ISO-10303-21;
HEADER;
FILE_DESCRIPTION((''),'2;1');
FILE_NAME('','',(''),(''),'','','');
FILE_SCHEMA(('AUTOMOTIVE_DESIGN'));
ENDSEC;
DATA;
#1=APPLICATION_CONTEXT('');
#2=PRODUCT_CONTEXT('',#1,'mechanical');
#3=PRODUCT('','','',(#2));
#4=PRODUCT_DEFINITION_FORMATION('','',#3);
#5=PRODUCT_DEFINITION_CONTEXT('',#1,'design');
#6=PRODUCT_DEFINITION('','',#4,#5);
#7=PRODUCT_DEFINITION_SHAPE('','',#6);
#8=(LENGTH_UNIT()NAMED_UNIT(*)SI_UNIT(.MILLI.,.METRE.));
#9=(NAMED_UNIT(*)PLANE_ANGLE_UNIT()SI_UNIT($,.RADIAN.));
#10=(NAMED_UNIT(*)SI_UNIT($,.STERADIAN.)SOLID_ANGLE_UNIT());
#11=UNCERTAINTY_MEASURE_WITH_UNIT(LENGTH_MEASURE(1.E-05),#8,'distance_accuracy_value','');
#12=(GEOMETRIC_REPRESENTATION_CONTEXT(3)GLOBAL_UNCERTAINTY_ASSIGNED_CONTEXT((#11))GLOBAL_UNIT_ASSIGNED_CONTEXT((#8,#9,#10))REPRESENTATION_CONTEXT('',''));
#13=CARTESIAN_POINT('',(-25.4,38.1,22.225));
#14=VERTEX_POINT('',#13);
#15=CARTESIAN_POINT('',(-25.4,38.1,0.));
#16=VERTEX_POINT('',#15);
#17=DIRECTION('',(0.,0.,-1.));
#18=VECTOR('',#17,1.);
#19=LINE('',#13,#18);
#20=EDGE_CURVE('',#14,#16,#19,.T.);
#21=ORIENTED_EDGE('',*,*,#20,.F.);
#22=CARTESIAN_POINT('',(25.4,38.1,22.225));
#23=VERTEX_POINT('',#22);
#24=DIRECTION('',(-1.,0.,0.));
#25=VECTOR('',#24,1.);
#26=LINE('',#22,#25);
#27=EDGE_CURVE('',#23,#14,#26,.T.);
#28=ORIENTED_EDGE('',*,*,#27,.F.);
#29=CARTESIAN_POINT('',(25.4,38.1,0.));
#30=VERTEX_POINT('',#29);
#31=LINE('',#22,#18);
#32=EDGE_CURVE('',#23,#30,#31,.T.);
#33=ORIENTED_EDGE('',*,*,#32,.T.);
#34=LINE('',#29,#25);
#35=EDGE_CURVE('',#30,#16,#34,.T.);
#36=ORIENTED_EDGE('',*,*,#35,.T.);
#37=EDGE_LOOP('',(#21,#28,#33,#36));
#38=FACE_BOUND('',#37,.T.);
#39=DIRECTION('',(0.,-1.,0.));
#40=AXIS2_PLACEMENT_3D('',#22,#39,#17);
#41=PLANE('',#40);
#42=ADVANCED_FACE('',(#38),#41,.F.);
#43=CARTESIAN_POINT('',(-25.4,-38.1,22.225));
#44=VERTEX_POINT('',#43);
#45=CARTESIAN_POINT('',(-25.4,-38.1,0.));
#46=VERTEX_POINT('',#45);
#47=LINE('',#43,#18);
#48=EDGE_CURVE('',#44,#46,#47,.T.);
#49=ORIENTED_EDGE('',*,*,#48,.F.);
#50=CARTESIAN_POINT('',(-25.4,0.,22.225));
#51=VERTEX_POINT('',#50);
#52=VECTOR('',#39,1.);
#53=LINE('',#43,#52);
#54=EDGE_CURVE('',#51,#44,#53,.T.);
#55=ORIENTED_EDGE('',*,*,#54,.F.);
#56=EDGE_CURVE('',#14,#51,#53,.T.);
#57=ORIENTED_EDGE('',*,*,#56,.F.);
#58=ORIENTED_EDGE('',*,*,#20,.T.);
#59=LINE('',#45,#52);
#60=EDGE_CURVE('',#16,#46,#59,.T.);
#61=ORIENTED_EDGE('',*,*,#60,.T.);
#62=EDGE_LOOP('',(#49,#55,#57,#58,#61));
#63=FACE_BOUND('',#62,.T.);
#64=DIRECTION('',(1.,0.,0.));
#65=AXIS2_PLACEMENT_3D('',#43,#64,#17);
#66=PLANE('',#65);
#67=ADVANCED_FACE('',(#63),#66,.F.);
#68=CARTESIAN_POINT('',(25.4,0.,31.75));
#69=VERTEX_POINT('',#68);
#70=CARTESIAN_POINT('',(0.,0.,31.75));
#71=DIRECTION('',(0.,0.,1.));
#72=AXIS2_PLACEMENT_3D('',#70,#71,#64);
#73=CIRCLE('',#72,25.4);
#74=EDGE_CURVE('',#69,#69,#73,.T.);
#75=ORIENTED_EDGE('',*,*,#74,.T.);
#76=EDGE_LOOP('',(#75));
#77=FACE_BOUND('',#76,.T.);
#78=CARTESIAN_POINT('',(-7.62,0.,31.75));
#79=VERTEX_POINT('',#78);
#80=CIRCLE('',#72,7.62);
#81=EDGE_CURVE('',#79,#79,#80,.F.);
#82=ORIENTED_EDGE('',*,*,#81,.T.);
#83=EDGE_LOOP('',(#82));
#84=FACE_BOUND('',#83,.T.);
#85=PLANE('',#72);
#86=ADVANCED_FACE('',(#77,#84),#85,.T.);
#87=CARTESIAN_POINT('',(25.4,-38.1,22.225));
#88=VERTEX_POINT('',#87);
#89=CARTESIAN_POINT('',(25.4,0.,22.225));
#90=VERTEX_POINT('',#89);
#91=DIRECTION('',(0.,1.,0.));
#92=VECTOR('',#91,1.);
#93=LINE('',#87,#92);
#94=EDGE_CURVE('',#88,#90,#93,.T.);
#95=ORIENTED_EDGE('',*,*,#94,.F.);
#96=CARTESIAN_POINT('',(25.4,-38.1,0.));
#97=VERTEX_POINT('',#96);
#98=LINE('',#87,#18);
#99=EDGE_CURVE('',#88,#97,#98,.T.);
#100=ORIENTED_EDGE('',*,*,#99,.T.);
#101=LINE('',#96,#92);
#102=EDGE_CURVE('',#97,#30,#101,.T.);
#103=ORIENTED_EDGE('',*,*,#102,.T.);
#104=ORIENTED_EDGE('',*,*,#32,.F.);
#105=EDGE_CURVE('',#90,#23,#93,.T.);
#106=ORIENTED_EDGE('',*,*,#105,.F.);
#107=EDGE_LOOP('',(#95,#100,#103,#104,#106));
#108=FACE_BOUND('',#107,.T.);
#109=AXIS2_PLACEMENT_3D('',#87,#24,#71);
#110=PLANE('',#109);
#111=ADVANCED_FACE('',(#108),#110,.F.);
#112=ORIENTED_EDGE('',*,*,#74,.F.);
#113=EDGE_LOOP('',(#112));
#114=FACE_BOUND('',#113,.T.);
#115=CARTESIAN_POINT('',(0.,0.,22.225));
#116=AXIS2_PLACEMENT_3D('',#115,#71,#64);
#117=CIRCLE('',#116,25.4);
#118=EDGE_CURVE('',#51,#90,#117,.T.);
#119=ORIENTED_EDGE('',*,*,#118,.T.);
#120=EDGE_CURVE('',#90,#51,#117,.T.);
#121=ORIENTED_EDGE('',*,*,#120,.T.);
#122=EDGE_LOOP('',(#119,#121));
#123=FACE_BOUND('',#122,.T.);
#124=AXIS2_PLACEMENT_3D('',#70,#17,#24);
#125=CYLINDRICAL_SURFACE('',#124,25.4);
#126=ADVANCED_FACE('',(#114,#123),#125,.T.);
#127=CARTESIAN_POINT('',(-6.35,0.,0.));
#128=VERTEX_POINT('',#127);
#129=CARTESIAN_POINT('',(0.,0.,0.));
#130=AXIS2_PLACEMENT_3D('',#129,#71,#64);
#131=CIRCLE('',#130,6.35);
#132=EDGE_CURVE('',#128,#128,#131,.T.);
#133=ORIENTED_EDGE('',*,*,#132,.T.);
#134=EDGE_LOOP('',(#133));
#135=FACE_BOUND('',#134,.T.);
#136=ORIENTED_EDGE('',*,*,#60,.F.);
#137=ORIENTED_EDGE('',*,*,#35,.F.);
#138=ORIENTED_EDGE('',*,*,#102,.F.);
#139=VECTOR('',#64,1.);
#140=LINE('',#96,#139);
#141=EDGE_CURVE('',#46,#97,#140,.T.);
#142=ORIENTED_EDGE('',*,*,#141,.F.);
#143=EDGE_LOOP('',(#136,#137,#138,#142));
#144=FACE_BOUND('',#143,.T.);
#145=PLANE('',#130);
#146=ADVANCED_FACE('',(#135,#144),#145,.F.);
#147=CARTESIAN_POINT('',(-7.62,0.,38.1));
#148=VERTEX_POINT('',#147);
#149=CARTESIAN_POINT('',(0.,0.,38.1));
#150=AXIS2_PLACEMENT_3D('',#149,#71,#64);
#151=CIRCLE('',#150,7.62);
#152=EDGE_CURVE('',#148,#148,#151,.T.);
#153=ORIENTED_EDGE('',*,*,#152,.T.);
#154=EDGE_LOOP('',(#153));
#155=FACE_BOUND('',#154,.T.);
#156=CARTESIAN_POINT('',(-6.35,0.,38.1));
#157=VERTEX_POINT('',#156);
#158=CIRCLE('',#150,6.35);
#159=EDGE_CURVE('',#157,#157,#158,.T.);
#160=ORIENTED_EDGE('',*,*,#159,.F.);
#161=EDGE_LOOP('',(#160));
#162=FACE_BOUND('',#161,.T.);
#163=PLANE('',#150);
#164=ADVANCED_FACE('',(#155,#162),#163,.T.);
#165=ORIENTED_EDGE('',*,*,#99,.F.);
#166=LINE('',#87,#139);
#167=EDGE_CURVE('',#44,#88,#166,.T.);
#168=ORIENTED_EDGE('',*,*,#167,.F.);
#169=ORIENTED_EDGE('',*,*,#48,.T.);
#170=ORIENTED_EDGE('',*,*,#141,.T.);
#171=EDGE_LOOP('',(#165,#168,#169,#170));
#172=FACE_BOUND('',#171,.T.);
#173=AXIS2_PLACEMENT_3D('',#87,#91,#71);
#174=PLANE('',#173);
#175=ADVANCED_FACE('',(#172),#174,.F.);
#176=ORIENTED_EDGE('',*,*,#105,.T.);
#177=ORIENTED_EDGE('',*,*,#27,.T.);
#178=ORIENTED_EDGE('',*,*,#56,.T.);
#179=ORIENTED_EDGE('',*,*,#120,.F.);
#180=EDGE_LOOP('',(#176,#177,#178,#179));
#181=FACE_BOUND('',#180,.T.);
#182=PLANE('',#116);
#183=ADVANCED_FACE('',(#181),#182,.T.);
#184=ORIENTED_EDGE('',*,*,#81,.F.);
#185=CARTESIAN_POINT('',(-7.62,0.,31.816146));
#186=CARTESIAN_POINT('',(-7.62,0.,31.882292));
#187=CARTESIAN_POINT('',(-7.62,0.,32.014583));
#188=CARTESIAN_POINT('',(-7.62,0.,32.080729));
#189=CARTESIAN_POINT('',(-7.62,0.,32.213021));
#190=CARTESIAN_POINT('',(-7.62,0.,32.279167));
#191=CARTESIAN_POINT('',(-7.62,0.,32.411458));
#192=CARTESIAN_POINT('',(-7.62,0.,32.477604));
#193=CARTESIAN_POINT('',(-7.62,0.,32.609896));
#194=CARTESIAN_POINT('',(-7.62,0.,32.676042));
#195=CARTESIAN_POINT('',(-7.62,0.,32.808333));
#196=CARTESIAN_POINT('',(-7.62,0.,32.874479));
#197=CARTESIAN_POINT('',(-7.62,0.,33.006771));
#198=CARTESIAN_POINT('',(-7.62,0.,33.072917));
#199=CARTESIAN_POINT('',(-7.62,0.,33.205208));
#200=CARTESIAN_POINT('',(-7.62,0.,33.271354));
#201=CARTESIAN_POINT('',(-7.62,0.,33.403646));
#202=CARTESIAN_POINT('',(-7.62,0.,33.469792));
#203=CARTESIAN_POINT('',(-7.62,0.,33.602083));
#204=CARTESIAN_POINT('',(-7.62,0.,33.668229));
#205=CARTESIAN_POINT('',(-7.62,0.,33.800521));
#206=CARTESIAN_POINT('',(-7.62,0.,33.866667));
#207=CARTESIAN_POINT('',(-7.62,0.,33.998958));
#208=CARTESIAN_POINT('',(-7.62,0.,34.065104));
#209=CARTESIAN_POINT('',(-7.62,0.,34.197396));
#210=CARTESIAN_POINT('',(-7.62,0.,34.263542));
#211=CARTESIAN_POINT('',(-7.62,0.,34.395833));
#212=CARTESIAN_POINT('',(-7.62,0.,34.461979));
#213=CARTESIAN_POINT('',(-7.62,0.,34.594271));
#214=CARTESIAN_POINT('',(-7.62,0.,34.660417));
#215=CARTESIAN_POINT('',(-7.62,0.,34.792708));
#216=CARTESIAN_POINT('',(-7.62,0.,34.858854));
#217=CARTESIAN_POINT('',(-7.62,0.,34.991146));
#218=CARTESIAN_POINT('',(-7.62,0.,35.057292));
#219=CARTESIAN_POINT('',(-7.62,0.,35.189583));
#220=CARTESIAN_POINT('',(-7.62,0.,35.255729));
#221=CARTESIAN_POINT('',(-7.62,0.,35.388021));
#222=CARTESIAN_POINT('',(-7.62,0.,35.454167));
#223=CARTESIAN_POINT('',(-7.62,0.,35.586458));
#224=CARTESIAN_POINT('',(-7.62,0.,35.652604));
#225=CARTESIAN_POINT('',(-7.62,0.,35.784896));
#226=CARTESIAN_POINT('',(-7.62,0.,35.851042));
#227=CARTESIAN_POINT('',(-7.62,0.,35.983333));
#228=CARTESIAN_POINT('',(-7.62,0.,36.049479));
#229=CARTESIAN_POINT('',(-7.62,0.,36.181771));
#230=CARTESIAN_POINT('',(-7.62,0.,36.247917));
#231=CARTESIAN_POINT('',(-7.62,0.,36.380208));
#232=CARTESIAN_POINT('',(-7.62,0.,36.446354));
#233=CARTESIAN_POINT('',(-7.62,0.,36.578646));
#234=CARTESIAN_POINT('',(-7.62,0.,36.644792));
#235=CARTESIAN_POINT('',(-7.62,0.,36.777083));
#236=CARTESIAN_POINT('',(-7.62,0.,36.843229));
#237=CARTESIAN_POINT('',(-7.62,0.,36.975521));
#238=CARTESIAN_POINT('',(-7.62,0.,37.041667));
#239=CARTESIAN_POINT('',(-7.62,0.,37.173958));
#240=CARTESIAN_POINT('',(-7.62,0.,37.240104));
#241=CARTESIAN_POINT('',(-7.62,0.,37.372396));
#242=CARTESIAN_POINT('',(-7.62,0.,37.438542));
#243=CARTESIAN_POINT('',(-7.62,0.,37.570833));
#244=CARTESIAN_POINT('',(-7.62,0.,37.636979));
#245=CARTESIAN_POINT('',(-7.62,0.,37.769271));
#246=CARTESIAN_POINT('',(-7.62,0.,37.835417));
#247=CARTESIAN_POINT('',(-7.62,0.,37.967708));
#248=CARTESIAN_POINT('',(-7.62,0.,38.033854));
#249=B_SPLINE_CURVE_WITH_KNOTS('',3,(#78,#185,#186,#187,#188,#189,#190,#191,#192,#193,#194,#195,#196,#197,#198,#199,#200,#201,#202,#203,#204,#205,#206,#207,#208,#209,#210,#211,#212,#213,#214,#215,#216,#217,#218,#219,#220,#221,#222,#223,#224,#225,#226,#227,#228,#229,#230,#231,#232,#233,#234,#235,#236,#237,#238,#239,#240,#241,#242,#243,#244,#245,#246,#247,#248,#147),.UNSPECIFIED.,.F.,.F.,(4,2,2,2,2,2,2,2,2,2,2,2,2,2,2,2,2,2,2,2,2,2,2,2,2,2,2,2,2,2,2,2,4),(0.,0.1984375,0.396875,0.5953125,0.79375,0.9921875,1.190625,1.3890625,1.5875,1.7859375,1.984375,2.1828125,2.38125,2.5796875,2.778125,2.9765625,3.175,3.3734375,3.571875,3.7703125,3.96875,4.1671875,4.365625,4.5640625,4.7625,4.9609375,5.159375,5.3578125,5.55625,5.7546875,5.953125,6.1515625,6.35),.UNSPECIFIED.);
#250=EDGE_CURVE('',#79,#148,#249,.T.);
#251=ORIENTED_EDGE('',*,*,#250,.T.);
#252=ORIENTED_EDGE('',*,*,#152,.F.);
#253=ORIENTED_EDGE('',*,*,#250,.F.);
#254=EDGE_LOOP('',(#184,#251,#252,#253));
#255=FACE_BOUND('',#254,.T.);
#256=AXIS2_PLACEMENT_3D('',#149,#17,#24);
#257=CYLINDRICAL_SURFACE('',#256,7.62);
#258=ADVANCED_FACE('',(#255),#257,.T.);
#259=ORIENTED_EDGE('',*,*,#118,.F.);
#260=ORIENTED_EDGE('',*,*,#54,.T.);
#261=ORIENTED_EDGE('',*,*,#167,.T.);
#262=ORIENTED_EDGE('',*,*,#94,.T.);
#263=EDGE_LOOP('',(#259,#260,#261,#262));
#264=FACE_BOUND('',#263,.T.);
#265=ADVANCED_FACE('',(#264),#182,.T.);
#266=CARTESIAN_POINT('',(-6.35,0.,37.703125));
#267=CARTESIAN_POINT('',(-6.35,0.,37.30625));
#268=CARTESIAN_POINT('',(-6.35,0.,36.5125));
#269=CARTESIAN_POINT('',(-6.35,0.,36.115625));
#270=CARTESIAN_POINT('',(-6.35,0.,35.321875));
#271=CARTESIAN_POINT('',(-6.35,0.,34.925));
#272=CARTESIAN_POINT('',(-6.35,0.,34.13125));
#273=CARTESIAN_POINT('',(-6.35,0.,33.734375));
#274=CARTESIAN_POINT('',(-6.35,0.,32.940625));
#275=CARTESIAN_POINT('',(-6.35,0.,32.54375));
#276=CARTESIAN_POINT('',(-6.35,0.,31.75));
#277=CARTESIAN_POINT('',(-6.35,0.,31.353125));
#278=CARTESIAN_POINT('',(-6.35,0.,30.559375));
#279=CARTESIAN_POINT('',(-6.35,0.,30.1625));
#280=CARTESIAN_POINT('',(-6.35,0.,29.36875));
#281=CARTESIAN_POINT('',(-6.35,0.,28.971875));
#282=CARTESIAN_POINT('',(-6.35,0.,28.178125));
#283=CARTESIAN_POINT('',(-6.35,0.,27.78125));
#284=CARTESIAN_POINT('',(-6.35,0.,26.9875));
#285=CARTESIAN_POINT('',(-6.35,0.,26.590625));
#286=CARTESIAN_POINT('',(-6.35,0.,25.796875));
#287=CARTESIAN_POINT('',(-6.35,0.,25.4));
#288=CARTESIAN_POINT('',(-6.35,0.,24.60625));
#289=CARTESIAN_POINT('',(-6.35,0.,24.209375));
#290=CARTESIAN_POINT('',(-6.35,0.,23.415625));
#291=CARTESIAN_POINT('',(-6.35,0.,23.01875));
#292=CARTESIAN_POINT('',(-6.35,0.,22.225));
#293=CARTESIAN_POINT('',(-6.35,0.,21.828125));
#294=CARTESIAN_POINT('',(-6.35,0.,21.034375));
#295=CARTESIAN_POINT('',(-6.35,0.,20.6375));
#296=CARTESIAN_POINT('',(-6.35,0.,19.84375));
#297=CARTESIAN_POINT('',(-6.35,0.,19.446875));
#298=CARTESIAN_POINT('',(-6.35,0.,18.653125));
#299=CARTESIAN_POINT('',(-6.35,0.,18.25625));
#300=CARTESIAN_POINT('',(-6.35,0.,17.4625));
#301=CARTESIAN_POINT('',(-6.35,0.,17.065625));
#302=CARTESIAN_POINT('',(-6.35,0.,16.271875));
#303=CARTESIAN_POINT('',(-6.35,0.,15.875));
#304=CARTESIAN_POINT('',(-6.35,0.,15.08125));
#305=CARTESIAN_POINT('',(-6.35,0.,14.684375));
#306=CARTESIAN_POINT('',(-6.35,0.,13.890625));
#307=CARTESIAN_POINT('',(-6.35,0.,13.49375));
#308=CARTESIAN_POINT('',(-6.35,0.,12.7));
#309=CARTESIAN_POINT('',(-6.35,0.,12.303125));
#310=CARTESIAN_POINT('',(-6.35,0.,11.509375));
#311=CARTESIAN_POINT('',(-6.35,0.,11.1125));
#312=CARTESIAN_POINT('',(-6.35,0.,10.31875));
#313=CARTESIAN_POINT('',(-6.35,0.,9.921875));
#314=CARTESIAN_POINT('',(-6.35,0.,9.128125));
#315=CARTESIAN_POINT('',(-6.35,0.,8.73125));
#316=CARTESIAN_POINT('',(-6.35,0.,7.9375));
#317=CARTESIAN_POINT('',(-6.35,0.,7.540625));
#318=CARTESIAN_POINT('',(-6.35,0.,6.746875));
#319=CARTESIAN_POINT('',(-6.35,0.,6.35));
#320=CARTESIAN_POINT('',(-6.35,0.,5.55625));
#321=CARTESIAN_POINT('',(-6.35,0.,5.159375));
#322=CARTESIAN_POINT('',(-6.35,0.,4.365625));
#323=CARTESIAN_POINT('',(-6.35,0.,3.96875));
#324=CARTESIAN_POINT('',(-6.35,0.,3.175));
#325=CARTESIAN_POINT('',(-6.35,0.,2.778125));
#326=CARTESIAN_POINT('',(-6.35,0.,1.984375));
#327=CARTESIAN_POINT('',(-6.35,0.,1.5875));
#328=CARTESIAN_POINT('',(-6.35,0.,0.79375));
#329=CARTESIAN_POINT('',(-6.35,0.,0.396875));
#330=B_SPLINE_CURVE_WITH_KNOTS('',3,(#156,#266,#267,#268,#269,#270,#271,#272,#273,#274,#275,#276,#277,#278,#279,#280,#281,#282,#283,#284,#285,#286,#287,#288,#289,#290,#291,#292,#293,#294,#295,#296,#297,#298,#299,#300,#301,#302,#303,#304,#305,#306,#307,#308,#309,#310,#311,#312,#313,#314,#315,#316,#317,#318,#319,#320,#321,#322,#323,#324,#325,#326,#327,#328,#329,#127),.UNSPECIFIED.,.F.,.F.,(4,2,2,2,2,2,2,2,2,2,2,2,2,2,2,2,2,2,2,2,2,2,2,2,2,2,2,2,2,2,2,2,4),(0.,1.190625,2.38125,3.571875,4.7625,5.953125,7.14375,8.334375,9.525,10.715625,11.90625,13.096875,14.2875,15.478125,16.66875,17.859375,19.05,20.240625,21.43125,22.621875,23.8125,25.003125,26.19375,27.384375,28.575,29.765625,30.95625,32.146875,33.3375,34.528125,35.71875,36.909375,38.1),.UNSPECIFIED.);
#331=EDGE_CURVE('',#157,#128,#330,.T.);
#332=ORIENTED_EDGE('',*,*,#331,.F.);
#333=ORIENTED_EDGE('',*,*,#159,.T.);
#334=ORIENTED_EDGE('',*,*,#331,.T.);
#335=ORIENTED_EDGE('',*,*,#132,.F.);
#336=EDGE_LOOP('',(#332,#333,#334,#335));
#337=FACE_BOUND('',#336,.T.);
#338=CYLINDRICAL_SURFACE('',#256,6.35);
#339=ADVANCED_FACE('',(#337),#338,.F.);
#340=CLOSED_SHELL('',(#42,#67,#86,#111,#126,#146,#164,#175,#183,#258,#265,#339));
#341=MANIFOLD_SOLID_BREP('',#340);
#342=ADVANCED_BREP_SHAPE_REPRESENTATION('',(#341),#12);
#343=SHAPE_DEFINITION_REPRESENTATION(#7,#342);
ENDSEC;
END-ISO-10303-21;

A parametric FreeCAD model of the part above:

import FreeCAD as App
import Part
import Sketcher
from FreeCAD import Vector
Q = App.Units.Quantity

doc = App.newDocument("Part")
body = doc.addObject("PartDesign::Body", "Body")

# Sketch on XY plane
sketch1 = body.newObject("Sketcher::SketchObject", "Sketch")
sketch1.AttachmentSupport = (doc.getObject("XY_Plane"), [""])
sketch1.MapMode = "FlatFace"
sketch1.addGeometry(Part.Circle(Vector(0, 0, 0), Vector(0, 0, 1), 25.4), False)
sketch1.addConstraint(Sketcher.Constraint("Coincident", 0, 3, -1, 1))
sketch1.addConstraint(Sketcher.Constraint("Diameter", 0, Q("2 in")))
pad1 = body.newObject("PartDesign::Pad", "Pad")
pad1.Profile = sketch1
pad1.Length = Q("1.25 in")

# Sketch on XY plane
sketch2 = body.newObject("Sketcher::SketchObject", "Sketch001")
sketch2.AttachmentSupport = (doc.getObject("XY_Plane"), [""])
sketch2.MapMode = "FlatFace"
sketch2.addGeometry(Part.Circle(Vector(0, 0, 0), Vector(0, 0, 1), 7.62), False)
sketch2.addConstraint(Sketcher.Constraint("Coincident", 0, 3, -1, 1))
sketch2.addConstraint(Sketcher.Constraint("Diameter", 0, Q("0.6 in")))
pad2 = body.newObject("PartDesign::Pad", "Pad001")
pad2.Profile = sketch2
pad2.Length = Q("1.5 in")

# Sketch on XY plane
sketch3 = body.newObject("Sketcher::SketchObject", "Sketch002")
sketch3.AttachmentSupport = (doc.getObject("XY_Plane"), [""])
sketch3.MapMode = "FlatFace"
sketch3.addGeometry(Part.LineSegment(Vector(-25.4, 38.1, 0), Vector(-25.4, -38.1, 0)), False)
sketch3.addGeometry(Part.LineSegment(Vector(-25.4, -38.1, 0), Vector(25.4, -38.1, 0)), False)
sketch3.addGeometry(Part.LineSegment(Vector(25.4, -38.1, 0), Vector(25.4, 38.1, 0)), False)
sketch3.addGeometry(Part.LineSegment(Vector(25.4, 38.1, 0), Vector(-25.4, 38.1, 0)), False)
sketch3.addConstraint(Sketcher.Constraint("Coincident", 0, 2, 1, 1))
sketch3.addConstraint(Sketcher.Constraint("Coincident", 1, 2, 2, 1))
sketch3.addConstraint(Sketcher.Constraint("Coincident", 2, 2, 3, 1))
sketch3.addConstraint(Sketcher.Constraint("Coincident", 3, 2, 0, 1))
sketch3.addConstraint(Sketcher.Constraint("Vertical", 0))
sketch3.addConstraint(Sketcher.Constraint("Horizontal", 1))
sketch3.addConstraint(Sketcher.Constraint("Vertical", 2))
sketch3.addConstraint(Sketcher.Constraint("Horizontal", 3))
sketch3.addConstraint(Sketcher.Constraint("Symmetric", 0, 2, 2, 2, -1, 1))
sketch3.addConstraint(Sketcher.Constraint("DistanceX", 1, 1, 1, 2, Q("2 in")))
sketch3.addConstraint(Sketcher.Constraint("DistanceY", 0, 2, 0, 1, Q("3 in")))
pad3 = body.newObject("PartDesign::Pad", "Pad002")
pad3.Profile = sketch3
pad3.Length = Q("0.875 in")

# Sketch on XY plane
sketch4 = body.newObject("Sketcher::SketchObject", "Sketch003")
sketch4.AttachmentSupport = (doc.getObject("XY_Plane"), [""])
sketch4.MapMode = "FlatFace"
sketch4.addGeometry(Part.Circle(Vector(0, 0, 0), Vector(0, 0, 1), 6.35), False)
sketch4.addConstraint(Sketcher.Constraint("Coincident", 0, 3, -1, 1))
sketch4.addConstraint(Sketcher.Constraint("Diameter", 0, Q("0.5 in")))
pocket1 = body.newObject("PartDesign::Pocket", "Pocket")
pocket1.Profile = sketch4
pocket1.Type = "ThroughAll"
pocket1.Reversed = True

doc.recompute()
